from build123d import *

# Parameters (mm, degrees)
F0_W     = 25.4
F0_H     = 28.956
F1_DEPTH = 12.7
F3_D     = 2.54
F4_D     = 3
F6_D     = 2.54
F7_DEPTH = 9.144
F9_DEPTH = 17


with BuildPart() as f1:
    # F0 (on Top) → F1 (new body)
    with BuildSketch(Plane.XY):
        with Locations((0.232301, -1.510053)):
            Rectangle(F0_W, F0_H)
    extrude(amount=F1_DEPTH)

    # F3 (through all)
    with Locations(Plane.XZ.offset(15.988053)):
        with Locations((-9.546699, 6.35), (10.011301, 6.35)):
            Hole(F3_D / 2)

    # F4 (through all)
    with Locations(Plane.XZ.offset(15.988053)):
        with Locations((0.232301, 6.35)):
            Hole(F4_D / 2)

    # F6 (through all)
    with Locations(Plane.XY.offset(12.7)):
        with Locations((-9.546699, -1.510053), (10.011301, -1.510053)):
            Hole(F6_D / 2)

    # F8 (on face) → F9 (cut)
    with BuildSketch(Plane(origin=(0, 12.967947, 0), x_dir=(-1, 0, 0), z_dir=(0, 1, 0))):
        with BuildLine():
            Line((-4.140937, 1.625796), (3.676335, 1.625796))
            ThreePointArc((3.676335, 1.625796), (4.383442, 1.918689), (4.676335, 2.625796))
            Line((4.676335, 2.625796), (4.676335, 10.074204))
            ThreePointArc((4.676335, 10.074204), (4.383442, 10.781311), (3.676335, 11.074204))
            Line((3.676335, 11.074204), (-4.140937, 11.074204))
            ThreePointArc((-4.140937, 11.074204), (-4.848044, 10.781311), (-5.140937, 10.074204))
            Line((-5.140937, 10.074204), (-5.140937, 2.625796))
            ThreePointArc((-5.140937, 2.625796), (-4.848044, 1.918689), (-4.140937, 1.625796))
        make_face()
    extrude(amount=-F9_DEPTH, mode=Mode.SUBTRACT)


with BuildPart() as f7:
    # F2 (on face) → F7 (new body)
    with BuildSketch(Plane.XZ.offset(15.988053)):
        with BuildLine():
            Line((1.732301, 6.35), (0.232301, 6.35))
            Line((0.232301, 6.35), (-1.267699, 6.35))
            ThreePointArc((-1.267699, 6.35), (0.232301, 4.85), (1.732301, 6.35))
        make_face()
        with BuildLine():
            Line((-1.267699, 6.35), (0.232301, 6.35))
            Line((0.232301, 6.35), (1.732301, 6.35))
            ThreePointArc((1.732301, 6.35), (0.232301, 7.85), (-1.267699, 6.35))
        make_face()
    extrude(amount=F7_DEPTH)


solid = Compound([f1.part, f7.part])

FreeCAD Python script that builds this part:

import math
import FreeCAD as App
import Part
import Sketcher

V = App.Vector
Q = App.Units.Quantity

doc = App.newDocument("Part")
body = doc.addObject("PartDesign::Body", "Body")

# Sketch on XY plane
sketch1 = body.newObject("Sketcher::SketchObject", "Sketch")
sketch1.AttachmentSupport = (doc.getObject("XY_Plane"), [""])
sketch1.MapMode = "FlatFace"
sketch1.addGeometry([
    Part.LineSegment(V(-12, 13, 0), V(-12, -16, 0)),
    Part.LineSegment(V(-12, -16, 0), V(13, -16, 0)),
    Part.LineSegment(V(13, -16, 0), V(13, 13, 0)),
    Part.LineSegment(V(13, 13, 0), V(-12, 13, 0)),
], False)
sketch1.addConstraint([
    Sketcher.Constraint("Coincident", 0, 2, 1, 1),
    Sketcher.Constraint("Coincident", 1, 2, 2, 1),
    Sketcher.Constraint("Coincident", 2, 2, 3, 1),
    Sketcher.Constraint("Coincident", 3, 2, 0, 1),
    Sketcher.Constraint("Vertical", 0),
    Sketcher.Constraint("Horizontal", 1),
    Sketcher.Constraint("Vertical", 2),
    Sketcher.Constraint("Horizontal", 3),
    Sketcher.Constraint("DistanceX", 1, 1, 1, 2, Q("1 in")),
    Sketcher.Constraint("DistanceY", 0, 2, 0, 1, Q("1.14 in")),
    Sketcher.Constraint("DistanceX", 0, 2, -1, 1, Q("12.467699 mm")),
    Sketcher.Constraint("DistanceY", 0, 2, -1, 1, Q("15.988053 mm")),
])
pad1 = body.newObject("PartDesign::Pad", "Pad")
pad1.Profile = sketch1
pad1.Length = Q("0.5 in")

# Sketch on XZ plane
sketch2 = body.newObject("Sketcher::SketchObject", "Sketch001")
sketch2.AttachmentSupport = (doc.getObject("XZ_Plane"), [""])
sketch2.MapMode = "FlatFace"
sketch2.AttachmentOffset = App.Placement(V(0, 0, 15.988053), App.Rotation())
sketch2.addGeometry([
    Part.Circle(V(-9.5, 6.3, 0), V(0, 0, 1), 1.3),
    Part.Circle(V(10, 6.3, 0), V(0, 0, 1), 1.3),
], False)
sketch2.addConstraint([
    Sketcher.Constraint("Equal", 0, 1),
    Sketcher.Constraint("Horizontal", 0, 3, 1, 3),
    Sketcher.Constraint("Diameter", 0, Q("0.1 in")),
    Sketcher.Constraint("DistanceY", -1, 1, 0, 3, Q("0.25 in")),
    Sketcher.Constraint("DistanceX", 0, 3, 1, 3, Q("0.77 in")),
    Sketcher.Constraint("DistanceX", 0, 3, -1, 1, Q("9.546699 mm")),
])
doc.recompute()
hole = body.newObject("PartDesign::Hole", "Hole")
hole.Profile = sketch2
hole.ThreadType = "None"
hole.Diameter = Q("0.1 in")
hole.DepthType = "ThroughAll"

# Sketch on XZ plane
sketch3 = body.newObject("Sketcher::SketchObject", "Sketch002")
sketch3.AttachmentSupport = (doc.getObject("XZ_Plane"), [""])
sketch3.MapMode = "FlatFace"
sketch3.AttachmentOffset = App.Placement(V(0, 0, 15.988053), App.Rotation())
sketch3.addGeometry(Part.Circle(V(0.2, 6.3, 0), V(0, 0, 1), 1.5), False)
sketch3.addConstraint([
    Sketcher.Constraint("Diameter", 0, Q("3 mm")),
    Sketcher.Constraint("DistanceY", -1, 1, 0, 3, Q("0.25 in")),
    Sketcher.Constraint("DistanceX", -1, 1, 0, 3, Q("0.232301 mm")),
])
doc.recompute()
hole2 = body.newObject("PartDesign::Hole", "Hole001")
hole2.Profile = sketch3
hole2.ThreadType = "None"
hole2.Diameter = 3
hole2.DepthType = "ThroughAll"

# Sketch on XY plane
sketch4 = body.newObject("Sketcher::SketchObject", "Sketch003")
sketch4.AttachmentSupport = (doc.getObject("XY_Plane"), [""])
sketch4.MapMode = "FlatFace"
sketch4.AttachmentOffset = App.Placement(V(0, 0, 0.5 * 25.4), App.Rotation())
sketch4.addGeometry([
    Part.Circle(V(-9.5, -1.5, 0), V(0, 0, 1), 1.3),
    Part.Circle(V(10, -1.5, 0), V(0, 0, 1), 1.3),
], False)
sketch4.addConstraint([
    Sketcher.Constraint("Equal", 0, 1),
    Sketcher.Constraint("Horizontal", 0, 3, 1, 3),
    Sketcher.Constraint("Diameter", 0, Q("0.1 in")),
    Sketcher.Constraint("DistanceX", 0, 3, 1, 3, Q("0.77 in")),
    Sketcher.Constraint("DistanceX", 0, 3, -1, 1, Q("9.546699 mm")),
    Sketcher.Constraint("DistanceY", 0, 3, -1, 1, Q("1.510053 mm")),
])
doc.recompute()
hole3 = body.newObject("PartDesign::Hole", "Hole002")
hole3.Profile = sketch4
hole3.ThreadType = "None"
hole3.Diameter = Q("0.1 in")
hole3.DepthType = "ThroughAll"

# Sketch on XZ plane
sketch5 = body.newObject("Sketcher::SketchObject", "Sketch004")
sketch5.AttachmentSupport = (doc.getObject("XZ_Plane"), [""])
sketch5.MapMode = "FlatFace"
sketch5.AttachmentOffset = App.Placement(V(0, 0, -12.967947), App.Rotation())
sketch5.addGeometry([
    Part.LineSegment(V(4.1, 1.6, 0), V(-3.7, 1.6, 0)),  # 0
    Part.ArcOfCircle(Part.Circle(V(-3.7, 2.6, 0), V(0, 0, 1), 1), math.radians(180), math.radians(270)),  # 1
    Part.LineSegment(V(-4.7, 2.6, 0), V(-4.7, 10.1, 0)),  # 2
    Part.ArcOfCircle(Part.Circle(V(-3.7, 10.1, 0), V(0, 0, 1), 1), math.radians(90), math.radians(180)),  # 3
    Part.LineSegment(V(-3.7, 11.1, 0), V(4.1, 11.1, 0)),  # 4
    Part.ArcOfCircle(Part.Circle(V(4.1, 10.1, 0), V(0, 0, 1), 1), math.radians(0), math.radians(90)),  # 5
    Part.LineSegment(V(5.1, 10.1, 0), V(5.1, 2.6, 0)),  # 6
    Part.ArcOfCircle(Part.Circle(V(4.1, 2.6, 0), V(0, 0, 1), 1), math.radians(-90), math.radians(0)),  # 7
], False)
sketch5.addConstraint([
    Sketcher.Constraint("Tangent", 0, 2, 1, 2),
    Sketcher.Constraint("Tangent", 1, 1, 2, 1),
    Sketcher.Constraint("Tangent", 2, 2, 3, 2),
    Sketcher.Constraint("Tangent", 3, 1, 4, 1),
    Sketcher.Constraint("Tangent", 4, 2, 5, 2),
    Sketcher.Constraint("Tangent", 5, 1, 6, 1),
    Sketcher.Constraint("Tangent", 6, 2, 7, 2),
    Sketcher.Constraint("Tangent", 7, 1, 0, 1),
    Sketcher.Constraint("Horizontal", 0),
    Sketcher.Constraint("Vertical", 2),
    Sketcher.Constraint("Horizontal", 4),
    Sketcher.Constraint("Vertical", 6),
    Sketcher.Constraint("Equal", 1, 3),
    Sketcher.Constraint("Equal", 3, 5),
    Sketcher.Constraint("Equal", 5, 7),
    Sketcher.Constraint("Radius", 1, Q("0.999999 mm")),
    Sketcher.Constraint("DistanceY", 2, 1, 2, 2, Q("7.448408 mm")),
    Sketcher.Constraint("DistanceX", 0, 2, 0, 1, Q("7.817272 mm")),
    Sketcher.Constraint("DistanceX", 1, 3, -1, 1, Q("3.676336 mm")),
    Sketcher.Constraint("DistanceY", -1, 1, 1, 3, Q("2.625795 mm")),
])
pocket1 = body.newObject("PartDesign::Pocket", "Pocket")
pocket1.Profile = sketch5
pocket1.Length = 17
pocket1.Reversed = True
body2 = doc.addObject("PartDesign::Body", "Body001")

# Sketch on XZ plane
sketch6 = body2.newObject("Sketcher::SketchObject", "Sketch005")
sketch6.AttachmentSupport = (doc.getObject("XZ_Plane001"), [""])
sketch6.MapMode = "FlatFace"
sketch6.AttachmentOffset = App.Placement(V(0, 0, 15.988053), App.Rotation())
sketch6.addGeometry(Part.Circle(V(0.2, 6.3, 0), V(0, 0, 1), 1.5), False)
sketch6.addConstraint([
    Sketcher.Constraint("Diameter", 0, Q("3 mm")),
    Sketcher.Constraint("DistanceY", -1, 1, 0, 3, Q("0.25 in")),
    Sketcher.Constraint("DistanceX", -1, 1, 0, 3, Q("0.232301 mm")),
])
pad2 = body2.newObject("PartDesign::Pad", "Pad001")
pad2.Profile = sketch6
pad2.Length = Q("0.36 in")

doc.recompute()
